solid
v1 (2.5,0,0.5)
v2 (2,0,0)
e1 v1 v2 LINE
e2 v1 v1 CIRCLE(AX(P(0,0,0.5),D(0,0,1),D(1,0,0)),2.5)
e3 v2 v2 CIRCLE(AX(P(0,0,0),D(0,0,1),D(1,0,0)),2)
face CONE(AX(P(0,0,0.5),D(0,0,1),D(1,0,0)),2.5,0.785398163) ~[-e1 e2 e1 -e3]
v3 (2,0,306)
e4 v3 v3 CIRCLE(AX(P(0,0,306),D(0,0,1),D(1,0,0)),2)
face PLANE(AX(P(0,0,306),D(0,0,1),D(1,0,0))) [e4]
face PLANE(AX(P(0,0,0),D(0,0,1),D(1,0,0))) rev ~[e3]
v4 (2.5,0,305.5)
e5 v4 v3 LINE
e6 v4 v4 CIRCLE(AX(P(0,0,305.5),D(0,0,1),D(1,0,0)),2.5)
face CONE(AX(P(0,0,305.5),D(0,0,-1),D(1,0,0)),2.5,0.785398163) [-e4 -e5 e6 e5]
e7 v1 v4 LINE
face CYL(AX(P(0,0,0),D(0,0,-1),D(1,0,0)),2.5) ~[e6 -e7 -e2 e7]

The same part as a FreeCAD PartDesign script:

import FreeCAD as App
import Part
import Sketcher
Q = App.Units.Quantity


def edges_at(feature, points):
    """Names of the edges that pass closest to the given points."""
    edges = feature.Shape.Edges
    near = lambda p: min(range(len(edges)), key=lambda i: edges[i].distToShape(Part.Vertex(*p))[0])
    return sorted({f"Edge{near(p) + 1}" for p in points})

doc = App.newDocument("Part")
params = doc.addObject("Spreadsheet::Sheet", "Params")
for row, (alias, value) in enumerate([
    ("sketch1_diameter", "5 mm"),
    ("pad1_length", "306 mm"),
    ("chamfer_size", "0.5 mm"),
], start=1):
    params.set(f"A{row}", alias)
    params.set(f"B{row}", "=" + value)
    params.setAlias(f"B{row}", alias)

body = doc.addObject("PartDesign::Body", "Body")

# Sketch on XY plane
sketch1 = body.newObject("Sketcher::SketchObject", "Sketch")
sketch1.AttachmentSupport = (doc.getObject("XY_Plane"), [""])
sketch1.MapMode = "FlatFace"
sketch1.addGeometry(Part.Circle(App.Vector(0, 0, 0), App.Vector(0, 0, 1), 2.5), False)
sketch1.addConstraint([
    Sketcher.Constraint("Coincident", 0, 3, -1, 1),
    Sketcher.Constraint("Diameter", 0, Q("5 mm")),
])
sketch1.setExpression("Constraints[1]", "Params.sketch1_diameter")
pad1 = body.newObject("PartDesign::Pad", "Pad")
pad1.Profile = sketch1
pad1.setExpression("Length", "Params.pad1_length")
doc.recompute()

chamfer = body.newObject("PartDesign::Chamfer", "Chamfer")
chamfer.Base = (pad1, edges_at(pad1, [(-2.5, 0, 306), (-2.5, 0, 0)]))
chamfer.setExpression("Size", "Params.chamfer_size")

doc.recompute()
